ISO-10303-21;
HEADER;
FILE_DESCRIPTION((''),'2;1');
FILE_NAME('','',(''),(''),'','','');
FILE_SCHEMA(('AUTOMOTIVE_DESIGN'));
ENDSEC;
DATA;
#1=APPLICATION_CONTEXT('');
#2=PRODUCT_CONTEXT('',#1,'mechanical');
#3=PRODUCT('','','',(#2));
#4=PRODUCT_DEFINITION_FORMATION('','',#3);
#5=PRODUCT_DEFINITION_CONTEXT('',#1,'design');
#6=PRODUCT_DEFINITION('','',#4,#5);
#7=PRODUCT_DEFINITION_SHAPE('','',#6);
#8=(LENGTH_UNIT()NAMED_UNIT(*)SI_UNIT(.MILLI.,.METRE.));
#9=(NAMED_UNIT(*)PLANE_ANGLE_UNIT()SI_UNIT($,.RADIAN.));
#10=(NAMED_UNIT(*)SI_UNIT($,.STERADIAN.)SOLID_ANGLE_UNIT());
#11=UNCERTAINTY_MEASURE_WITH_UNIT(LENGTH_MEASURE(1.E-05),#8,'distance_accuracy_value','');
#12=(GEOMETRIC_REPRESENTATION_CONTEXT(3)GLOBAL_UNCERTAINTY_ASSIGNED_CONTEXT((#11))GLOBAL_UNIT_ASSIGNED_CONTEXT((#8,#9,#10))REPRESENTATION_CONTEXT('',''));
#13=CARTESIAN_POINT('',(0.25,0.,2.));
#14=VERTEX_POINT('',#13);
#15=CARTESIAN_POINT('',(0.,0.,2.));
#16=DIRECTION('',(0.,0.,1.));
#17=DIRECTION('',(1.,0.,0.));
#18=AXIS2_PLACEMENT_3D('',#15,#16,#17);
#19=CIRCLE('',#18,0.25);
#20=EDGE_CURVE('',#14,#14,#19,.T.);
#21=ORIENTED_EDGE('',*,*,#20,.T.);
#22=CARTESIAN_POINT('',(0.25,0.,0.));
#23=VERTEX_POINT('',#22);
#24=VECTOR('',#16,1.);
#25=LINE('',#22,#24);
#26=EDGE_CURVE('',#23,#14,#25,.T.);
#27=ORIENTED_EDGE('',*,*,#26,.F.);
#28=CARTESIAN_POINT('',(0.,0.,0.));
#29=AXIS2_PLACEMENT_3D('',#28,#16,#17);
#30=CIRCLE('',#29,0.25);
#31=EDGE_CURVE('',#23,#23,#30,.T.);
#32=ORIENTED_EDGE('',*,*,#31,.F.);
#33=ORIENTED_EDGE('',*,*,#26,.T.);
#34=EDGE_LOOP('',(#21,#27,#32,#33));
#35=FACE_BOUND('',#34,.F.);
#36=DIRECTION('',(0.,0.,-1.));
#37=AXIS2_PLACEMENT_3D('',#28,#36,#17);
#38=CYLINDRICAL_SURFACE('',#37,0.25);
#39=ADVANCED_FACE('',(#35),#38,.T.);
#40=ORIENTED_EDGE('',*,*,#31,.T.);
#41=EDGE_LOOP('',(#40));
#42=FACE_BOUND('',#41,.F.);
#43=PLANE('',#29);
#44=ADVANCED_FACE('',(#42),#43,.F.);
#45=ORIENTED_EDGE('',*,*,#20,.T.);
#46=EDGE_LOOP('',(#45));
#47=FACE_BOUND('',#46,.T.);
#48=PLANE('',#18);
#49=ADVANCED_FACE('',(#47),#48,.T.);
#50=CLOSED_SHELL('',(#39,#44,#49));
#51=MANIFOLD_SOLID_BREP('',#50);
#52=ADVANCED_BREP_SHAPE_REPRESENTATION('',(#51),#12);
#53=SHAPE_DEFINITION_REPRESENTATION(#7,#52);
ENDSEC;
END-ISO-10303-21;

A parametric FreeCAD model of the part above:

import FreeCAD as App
import Part
import Sketcher

V = App.Vector

doc = App.newDocument("Part")
body = doc.addObject("PartDesign::Body", "Body")

# Sketch on XY plane
sketch1 = body.newObject("Sketcher::SketchObject", "Sketch")
sketch1.AttachmentSupport = (doc.getObject("XY_Plane"), [""])
sketch1.MapMode = "FlatFace"
sketch1.addGeometry(Part.Circle(V(0, 0, 0), V(0, 0, 1), 0.25), False)
sketch1.addConstraint([
    Sketcher.Constraint("Coincident", 0, 3, -1, 1),
    Sketcher.Constraint("Diameter", 0, 0.5),
])
pad1 = body.newObject("PartDesign::Pad", "Pad")
pad1.Profile = sketch1
pad1.Length = 2

doc.recompute()
